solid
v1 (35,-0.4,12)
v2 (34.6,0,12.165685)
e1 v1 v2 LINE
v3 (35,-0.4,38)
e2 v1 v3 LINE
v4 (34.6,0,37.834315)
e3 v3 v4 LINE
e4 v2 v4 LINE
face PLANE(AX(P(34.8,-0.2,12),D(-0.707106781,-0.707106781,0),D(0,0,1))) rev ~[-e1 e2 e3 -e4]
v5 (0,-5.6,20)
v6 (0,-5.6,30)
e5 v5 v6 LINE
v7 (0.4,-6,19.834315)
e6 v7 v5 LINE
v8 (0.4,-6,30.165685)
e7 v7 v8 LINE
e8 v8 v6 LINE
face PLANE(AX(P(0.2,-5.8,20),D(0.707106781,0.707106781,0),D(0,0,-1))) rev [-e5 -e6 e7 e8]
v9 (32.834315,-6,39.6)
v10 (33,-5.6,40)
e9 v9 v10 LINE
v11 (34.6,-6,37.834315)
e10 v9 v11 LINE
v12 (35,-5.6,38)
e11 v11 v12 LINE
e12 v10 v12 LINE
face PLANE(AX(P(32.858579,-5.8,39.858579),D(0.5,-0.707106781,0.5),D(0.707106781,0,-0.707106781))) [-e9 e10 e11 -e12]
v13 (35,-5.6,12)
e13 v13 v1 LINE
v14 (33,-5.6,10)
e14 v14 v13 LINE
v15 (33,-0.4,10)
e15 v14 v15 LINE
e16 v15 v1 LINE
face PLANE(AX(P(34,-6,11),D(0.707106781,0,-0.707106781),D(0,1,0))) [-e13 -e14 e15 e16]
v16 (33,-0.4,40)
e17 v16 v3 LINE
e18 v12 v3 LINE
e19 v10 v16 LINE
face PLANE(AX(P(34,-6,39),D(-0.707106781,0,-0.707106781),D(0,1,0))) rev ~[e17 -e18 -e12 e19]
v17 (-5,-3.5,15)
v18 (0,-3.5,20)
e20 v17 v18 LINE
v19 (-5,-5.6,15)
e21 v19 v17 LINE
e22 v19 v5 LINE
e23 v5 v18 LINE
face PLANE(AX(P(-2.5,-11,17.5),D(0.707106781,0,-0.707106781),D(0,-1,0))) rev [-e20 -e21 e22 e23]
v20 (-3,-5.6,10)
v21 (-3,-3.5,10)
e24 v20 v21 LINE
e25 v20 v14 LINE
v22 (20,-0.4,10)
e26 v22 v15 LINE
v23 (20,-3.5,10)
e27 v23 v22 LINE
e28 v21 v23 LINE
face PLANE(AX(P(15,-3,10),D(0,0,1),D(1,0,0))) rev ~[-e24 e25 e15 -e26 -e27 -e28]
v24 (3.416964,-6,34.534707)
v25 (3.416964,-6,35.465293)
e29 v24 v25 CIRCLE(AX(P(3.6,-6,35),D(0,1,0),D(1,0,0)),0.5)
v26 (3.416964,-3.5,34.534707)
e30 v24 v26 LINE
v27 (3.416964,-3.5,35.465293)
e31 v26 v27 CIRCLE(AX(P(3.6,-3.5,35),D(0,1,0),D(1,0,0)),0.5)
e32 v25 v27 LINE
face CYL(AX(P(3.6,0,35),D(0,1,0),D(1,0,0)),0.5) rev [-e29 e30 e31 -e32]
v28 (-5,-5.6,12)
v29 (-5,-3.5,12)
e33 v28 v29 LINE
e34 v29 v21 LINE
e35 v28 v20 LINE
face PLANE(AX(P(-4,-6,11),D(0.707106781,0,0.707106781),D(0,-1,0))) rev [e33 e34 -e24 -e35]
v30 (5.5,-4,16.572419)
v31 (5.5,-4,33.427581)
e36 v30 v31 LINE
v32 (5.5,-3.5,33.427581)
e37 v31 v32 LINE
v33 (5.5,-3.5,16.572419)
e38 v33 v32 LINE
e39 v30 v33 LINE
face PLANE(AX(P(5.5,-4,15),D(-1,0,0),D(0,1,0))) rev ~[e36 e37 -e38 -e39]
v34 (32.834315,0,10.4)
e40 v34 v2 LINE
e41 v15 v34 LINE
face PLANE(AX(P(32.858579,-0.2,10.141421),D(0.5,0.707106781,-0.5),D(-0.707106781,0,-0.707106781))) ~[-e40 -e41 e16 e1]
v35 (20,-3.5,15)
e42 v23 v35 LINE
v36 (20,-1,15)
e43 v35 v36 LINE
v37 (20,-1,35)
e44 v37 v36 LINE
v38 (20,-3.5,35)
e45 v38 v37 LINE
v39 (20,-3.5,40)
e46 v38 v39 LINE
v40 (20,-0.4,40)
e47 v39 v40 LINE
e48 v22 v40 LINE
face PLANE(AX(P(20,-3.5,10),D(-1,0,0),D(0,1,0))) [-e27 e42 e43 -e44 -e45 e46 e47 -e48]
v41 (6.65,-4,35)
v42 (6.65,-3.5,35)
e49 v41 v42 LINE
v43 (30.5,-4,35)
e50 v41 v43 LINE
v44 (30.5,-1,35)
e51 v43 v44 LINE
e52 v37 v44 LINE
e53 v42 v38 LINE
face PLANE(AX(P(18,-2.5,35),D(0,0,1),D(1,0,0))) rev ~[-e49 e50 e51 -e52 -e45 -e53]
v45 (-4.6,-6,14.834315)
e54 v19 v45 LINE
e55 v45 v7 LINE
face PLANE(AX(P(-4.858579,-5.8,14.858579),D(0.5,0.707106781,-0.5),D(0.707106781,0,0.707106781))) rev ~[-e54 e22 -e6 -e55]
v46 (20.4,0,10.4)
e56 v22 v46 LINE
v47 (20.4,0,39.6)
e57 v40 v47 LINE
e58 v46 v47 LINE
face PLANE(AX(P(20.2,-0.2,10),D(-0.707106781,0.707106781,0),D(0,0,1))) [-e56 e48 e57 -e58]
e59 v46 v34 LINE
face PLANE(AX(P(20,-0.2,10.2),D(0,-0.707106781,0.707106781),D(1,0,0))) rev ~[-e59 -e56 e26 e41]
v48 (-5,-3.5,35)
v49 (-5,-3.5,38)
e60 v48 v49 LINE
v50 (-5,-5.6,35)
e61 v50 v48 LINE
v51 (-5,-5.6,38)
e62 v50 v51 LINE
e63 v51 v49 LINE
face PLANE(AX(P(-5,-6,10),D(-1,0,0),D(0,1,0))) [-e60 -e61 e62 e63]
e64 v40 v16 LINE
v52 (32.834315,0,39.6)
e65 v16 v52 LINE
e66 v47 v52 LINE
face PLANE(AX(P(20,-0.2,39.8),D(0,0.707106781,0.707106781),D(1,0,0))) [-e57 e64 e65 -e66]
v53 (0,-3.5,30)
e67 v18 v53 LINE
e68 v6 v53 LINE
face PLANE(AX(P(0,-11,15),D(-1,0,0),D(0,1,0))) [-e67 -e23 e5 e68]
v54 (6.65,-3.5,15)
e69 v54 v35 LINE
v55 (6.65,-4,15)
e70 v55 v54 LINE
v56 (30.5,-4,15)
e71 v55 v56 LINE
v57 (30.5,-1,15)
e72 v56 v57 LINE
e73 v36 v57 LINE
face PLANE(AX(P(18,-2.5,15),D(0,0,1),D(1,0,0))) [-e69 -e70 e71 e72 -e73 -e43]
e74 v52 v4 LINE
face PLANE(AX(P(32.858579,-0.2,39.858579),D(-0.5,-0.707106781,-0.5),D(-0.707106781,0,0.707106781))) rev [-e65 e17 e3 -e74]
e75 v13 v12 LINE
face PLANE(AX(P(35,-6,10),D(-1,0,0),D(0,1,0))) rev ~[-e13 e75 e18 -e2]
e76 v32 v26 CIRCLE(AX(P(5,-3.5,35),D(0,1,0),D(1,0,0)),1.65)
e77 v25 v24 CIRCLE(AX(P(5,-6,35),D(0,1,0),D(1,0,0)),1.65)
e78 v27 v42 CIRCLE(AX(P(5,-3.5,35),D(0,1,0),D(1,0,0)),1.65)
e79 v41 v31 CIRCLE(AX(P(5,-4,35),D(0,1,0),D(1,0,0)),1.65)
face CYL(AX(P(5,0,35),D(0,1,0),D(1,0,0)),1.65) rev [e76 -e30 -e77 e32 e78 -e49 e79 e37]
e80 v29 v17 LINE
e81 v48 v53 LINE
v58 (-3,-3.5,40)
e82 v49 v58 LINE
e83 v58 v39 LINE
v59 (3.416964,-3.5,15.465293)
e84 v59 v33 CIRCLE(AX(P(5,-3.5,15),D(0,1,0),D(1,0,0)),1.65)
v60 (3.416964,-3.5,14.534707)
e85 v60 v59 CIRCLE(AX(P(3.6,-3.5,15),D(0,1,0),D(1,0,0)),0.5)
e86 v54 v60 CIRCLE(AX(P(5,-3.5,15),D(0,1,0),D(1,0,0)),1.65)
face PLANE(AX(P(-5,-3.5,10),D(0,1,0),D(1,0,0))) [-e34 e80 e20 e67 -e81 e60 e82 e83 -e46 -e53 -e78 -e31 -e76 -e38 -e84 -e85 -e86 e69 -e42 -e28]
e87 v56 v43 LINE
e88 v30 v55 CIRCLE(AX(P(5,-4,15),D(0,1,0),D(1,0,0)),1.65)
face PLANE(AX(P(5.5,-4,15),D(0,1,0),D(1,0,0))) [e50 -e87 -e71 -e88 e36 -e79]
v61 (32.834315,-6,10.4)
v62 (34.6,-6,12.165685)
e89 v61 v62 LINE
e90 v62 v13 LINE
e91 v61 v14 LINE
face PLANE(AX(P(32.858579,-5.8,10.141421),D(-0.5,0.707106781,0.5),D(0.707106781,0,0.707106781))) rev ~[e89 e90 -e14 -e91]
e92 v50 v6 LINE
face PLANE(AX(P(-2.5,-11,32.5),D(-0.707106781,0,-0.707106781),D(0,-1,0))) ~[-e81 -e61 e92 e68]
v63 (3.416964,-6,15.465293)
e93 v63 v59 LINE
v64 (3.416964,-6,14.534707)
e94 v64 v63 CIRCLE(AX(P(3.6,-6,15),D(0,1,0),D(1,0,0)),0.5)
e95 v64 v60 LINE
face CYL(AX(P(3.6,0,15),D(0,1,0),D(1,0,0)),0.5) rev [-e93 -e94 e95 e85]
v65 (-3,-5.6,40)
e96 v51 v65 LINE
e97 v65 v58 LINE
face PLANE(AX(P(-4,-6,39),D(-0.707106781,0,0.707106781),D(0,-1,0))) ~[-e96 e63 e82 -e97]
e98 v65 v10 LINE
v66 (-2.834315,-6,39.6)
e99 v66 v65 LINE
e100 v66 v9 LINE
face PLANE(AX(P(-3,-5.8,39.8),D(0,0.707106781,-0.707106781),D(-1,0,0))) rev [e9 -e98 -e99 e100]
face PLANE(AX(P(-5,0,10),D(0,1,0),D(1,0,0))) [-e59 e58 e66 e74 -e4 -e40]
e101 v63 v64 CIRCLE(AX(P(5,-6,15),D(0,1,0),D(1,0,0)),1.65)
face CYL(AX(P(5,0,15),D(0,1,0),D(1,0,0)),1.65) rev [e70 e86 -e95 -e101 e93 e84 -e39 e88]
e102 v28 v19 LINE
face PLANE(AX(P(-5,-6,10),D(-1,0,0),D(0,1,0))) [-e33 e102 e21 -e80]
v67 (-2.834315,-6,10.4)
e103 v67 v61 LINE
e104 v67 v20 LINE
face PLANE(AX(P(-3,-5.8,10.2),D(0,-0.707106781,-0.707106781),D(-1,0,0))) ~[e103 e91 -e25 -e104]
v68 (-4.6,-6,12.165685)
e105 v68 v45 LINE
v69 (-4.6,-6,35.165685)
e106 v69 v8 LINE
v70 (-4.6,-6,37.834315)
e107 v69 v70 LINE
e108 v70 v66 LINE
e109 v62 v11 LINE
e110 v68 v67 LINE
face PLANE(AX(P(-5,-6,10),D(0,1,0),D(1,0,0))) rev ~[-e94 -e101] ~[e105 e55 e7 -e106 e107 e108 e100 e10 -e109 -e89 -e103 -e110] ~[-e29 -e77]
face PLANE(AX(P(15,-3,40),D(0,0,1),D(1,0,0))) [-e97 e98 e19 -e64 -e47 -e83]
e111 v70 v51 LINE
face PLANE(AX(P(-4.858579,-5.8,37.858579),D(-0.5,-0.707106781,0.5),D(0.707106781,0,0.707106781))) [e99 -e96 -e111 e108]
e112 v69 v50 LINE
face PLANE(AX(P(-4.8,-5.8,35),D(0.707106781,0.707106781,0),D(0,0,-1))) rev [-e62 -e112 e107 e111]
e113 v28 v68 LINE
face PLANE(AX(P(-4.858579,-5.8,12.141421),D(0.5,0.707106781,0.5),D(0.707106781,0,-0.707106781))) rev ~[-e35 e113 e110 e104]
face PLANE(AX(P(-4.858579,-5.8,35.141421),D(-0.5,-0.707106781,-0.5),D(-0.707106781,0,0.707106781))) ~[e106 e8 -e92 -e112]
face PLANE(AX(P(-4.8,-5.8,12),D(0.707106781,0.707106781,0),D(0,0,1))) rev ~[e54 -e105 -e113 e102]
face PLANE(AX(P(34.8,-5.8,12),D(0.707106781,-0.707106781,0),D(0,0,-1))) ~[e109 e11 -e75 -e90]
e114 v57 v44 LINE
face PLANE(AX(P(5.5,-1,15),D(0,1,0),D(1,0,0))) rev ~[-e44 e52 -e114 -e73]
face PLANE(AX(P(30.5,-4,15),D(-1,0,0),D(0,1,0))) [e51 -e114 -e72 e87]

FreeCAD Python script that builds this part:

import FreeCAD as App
import Part
import Sketcher

V = App.Vector


def edges_at(feature, points):
    """Names of the edges that pass closest to the given points."""
    edges = feature.Shape.Edges
    near = lambda p: min(range(len(edges)), key=lambda i: edges[i].distToShape(Part.Vertex(*p))[0])
    return sorted({f"Edge{near(p) + 1}" for p in points})

doc = App.newDocument("Part")
params = doc.addObject("Spreadsheet::Sheet", "Params")
for row, (alias, value) in enumerate([
    ("sketch1_diameter", "1 mm"),
    ("pad1_length", "10 mm"),
    ("sketch2_diameter", "1 mm"),
    ("pad2_length", "10 mm"),
    ("sketch3_diameter", "3.3 mm"),
    ("pad3_length", "10 mm"),
    ("sketch4_diameter", "3.3 mm"),
    ("pad4_length", "10 mm"),
    ("sketch5_width", "10 mm"),
    ("pad5_length", "20 mm"),
    ("chamfer_size", "5 mm"),
    ("sketch6_width", "25 mm"),
    ("sketch6_height", "3 mm"),
    ("pad6_length", "20 mm"),
    ("sketch7_width", "25 mm"),
    ("sketch7_height", "3.5 mm"),
    ("pad7_length", "30 mm"),
    ("sketch8_width", "40 mm"),
    ("sketch8_height", "6 mm"),
    ("pad8_length", "30 mm"),
    ("chamfer2_size", "2 mm"),
    ("chamfer3_size", "0.4 mm"),
], start=1):
    params.set(f"A{row}", alias)
    params.set(f"B{row}", "=" + value)
    params.setAlias(f"B{row}", alias)

body = doc.addObject("PartDesign::Body", "Body")

# Sketch on XZ plane
sketch1 = body.newObject("Sketcher::SketchObject", "Sketch")
sketch1.AttachmentSupport = (doc.getObject("XZ_Plane"), [""])
sketch1.MapMode = "FlatFace"
sketch1.addGeometry(Part.Circle(V(5, 25, 0), V(0, 0, 1), 0.5), False)
sketch1.addConstraint([
    Sketcher.Constraint("Diameter", 0, 1.0),
    Sketcher.Constraint("DistanceX", -1, 1, 0, 3, 5.0),
    Sketcher.Constraint("DistanceY", -1, 1, 0, 3, 25.0),
])
sketch1.setExpression("Constraints[0]", "Params.sketch1_diameter")
pad1 = body.newObject("PartDesign::Pad", "Pad")
pad1.Profile = sketch1
pad1.setExpression("Length", "Params.pad1_length")
body2 = doc.addObject("PartDesign::Body", "Body001")
body2.AllowCompound = True

# Sketch on XZ plane
sketch2 = body2.newObject("Sketcher::SketchObject", "Sketch001")
sketch2.AttachmentSupport = (doc.getObject("XZ_Plane001"), [""])
sketch2.MapMode = "FlatFace"
sketch2.addGeometry(Part.Circle(V(5, 5, 0), V(0, 0, 1), 0.5), False)
sketch2.addConstraint([
    Sketcher.Constraint("Diameter", 0, 1.0),
    Sketcher.Constraint("DistanceX", -1, 1, 0, 3, 5.0),
    Sketcher.Constraint("DistanceY", -1, 1, 0, 3, 5.0),
])
sketch2.setExpression("Constraints[0]", "Params.sketch2_diameter")
pad2 = body2.newObject("PartDesign::Pad", "Pad001")
pad2.Profile = sketch2
pad2.setExpression("Length", "Params.pad2_length")
doc.recompute()

boolean = body2.newObject("PartDesign::Boolean", "Boolean")
boolean.Type = "Fuse"
boolean.addObjects([body])
body3 = doc.addObject("PartDesign::Body", "Body002")
body3.AllowCompound = True
doc.recompute()

body2.Placement = App.Placement(V(-1.4, 0, 0), App.Rotation(V(0, 0, 1), 0))
boolean2 = body3.newObject("PartDesign::Boolean", "Boolean001")
boolean2.Type = "Fuse"
boolean2.addObjects([body2])
body4 = doc.addObject("PartDesign::Body", "Body003")

# Sketch on XZ plane
sketch3 = body4.newObject("Sketcher::SketchObject", "Sketch002")
sketch3.AttachmentSupport = (doc.getObject("XZ_Plane003"), [""])
sketch3.MapMode = "FlatFace"
sketch3.addGeometry(Part.Circle(V(5, 5, 0), V(0, 0, 1), 1.6), False)
sketch3.addConstraint([
    Sketcher.Constraint("Diameter", 0, 3.3),
    Sketcher.Constraint("DistanceX", -1, 1, 0, 3, 5.0),
    Sketcher.Constraint("DistanceY", -1, 1, 0, 3, 5.0),
])
sketch3.setExpression("Constraints[0]", "Params.sketch3_diameter")
pad3 = body4.newObject("PartDesign::Pad", "Pad002")
pad3.Profile = sketch3
pad3.setExpression("Length", "Params.pad3_length")
body5 = doc.addObject("PartDesign::Body", "Body004")
body5.AllowCompound = True

# Sketch on XZ plane
sketch4 = body5.newObject("Sketcher::SketchObject", "Sketch003")
sketch4.AttachmentSupport = (doc.getObject("XZ_Plane004"), [""])
sketch4.MapMode = "FlatFace"
sketch4.addGeometry(Part.Circle(V(5, 25, 0), V(0, 0, 1), 1.6), False)
sketch4.addConstraint([
    Sketcher.Constraint("Diameter", 0, 3.3),
    Sketcher.Constraint("DistanceX", -1, 1, 0, 3, 5.0),
    Sketcher.Constraint("DistanceY", -1, 1, 0, 3, 25.0),
])
sketch4.setExpression("Constraints[0]", "Params.sketch4_diameter")
pad4 = body5.newObject("PartDesign::Pad", "Pad003")
pad4.Profile = sketch4
pad4.setExpression("Length", "Params.pad4_length")
doc.recompute()

boolean3 = body5.newObject("PartDesign::Boolean", "Boolean002")
boolean3.Type = "Fuse"
boolean3.addObjects([body4])
doc.recompute()

boolean4 = body5.newObject("PartDesign::Boolean", "Boolean003")
boolean4.Type = "Fuse"
boolean4.addObjects([body3])
body6 = doc.addObject("PartDesign::Body", "Body005")

# Sketch on XY plane
sketch5 = body6.newObject("Sketcher::SketchObject", "Sketch004")
sketch5.AttachmentSupport = (doc.getObject("XY_Plane005"), [""])
sketch5.MapMode = "FlatFace"
sketch5.addGeometry([
    Part.LineSegment(V(-10, -1, 0), V(-10, -11, 0)),
    Part.LineSegment(V(-10, -11, 0), V(0, -11, 0)),
    Part.LineSegment(V(0, -11, 0), V(0, -1, 0)),
    Part.LineSegment(V(0, -1, 0), V(-10, -1, 0)),
], False)
sketch5.addConstraint([
    Sketcher.Constraint("Coincident", 0, 2, 1, 1),
    Sketcher.Constraint("Coincident", 1, 2, 2, 1),
    Sketcher.Constraint("Coincident", 2, 2, 3, 1),
    Sketcher.Constraint("Coincident", 3, 2, 0, 1),
    Sketcher.Constraint("Vertical", 0),
    Sketcher.Constraint("Horizontal", 1),
    Sketcher.Constraint("Vertical", 2),
    Sketcher.Constraint("Horizontal", 3),
    Sketcher.Constraint("PointOnObject", 1, 2, -2),
    Sketcher.Constraint("Equal", 3, 0),
    Sketcher.Constraint("DistanceX", 1, 1, 1, 2, 10.0),
    Sketcher.Constraint("DistanceY", 0, 2, -1, 1, 11.0),
])
sketch5.setExpression("Constraints[10]", "Params.sketch5_width")
pad5 = body6.newObject("PartDesign::Pad", "Pad004")
pad5.Profile = sketch5
pad5.setExpression("Length", "Params.pad5_length")
doc.recompute()

chamfer = body6.newObject("PartDesign::Chamfer", "Chamfer")
chamfer.Base = (pad5, edges_at(pad5, [(0, -6, 20), (0, -6, 0)]))
chamfer.setExpression("Size", "Params.chamfer_size")
body7 = doc.addObject("PartDesign::Body", "Body006")
doc.recompute()

body6.Placement = App.Placement(V(0, 0, 5), App.Rotation(V(0, 0, 1), 0))
boolean5 = body7.newObject("PartDesign::Boolean", "Boolean004")
boolean5.Type = "Fuse"
boolean5.addObjects([body6])
body8 = doc.addObject("PartDesign::Body", "Body007")

# Sketch on XY plane
sketch6 = body8.newObject("Sketcher::SketchObject", "Sketch005")
sketch6.AttachmentSupport = (doc.getObject("XY_Plane007"), [""])
sketch6.MapMode = "FlatFace"
sketch6.AttachmentOffset = App.Placement(V(0, 0, 5), App.Rotation())
sketch6.addGeometry([
    Part.LineSegment(V(5.5, -1, 0), V(5.5, -4, 0)),
    Part.LineSegment(V(5.5, -4, 0), V(30.5, -4, 0)),
    Part.LineSegment(V(30.5, -4, 0), V(30.5, -1, 0)),
    Part.LineSegment(V(30.5, -1, 0), V(5.5, -1, 0)),
], False)
sketch6.addConstraint([
    Sketcher.Constraint("Coincident", 0, 2, 1, 1),
    Sketcher.Constraint("Coincident", 1, 2, 2, 1),
    Sketcher.Constraint("Coincident", 2, 2, 3, 1),
    Sketcher.Constraint("Coincident", 3, 2, 0, 1),
    Sketcher.Constraint("Vertical", 0),
    Sketcher.Constraint("Horizontal", 1),
    Sketcher.Constraint("Vertical", 2),
    Sketcher.Constraint("Horizontal", 3),
    Sketcher.Constraint("DistanceX", 1, 1, 1, 2, 25.0),
    Sketcher.Constraint("DistanceY", 0, 2, 0, 1, 3.0),
    Sketcher.Constraint("DistanceY", 0, 2, -1, 1, 4.0),
    Sketcher.Constraint("DistanceX", -1, 1, 0, 2, 5.5),
])
sketch6.setExpression("Constraints[8]", "Params.sketch6_width")
sketch6.setExpression("Constraints[9]", "Params.sketch6_height")
pad6 = body8.newObject("PartDesign::Pad", "Pad005")
pad6.Profile = sketch6
pad6.setExpression("Length", "Params.pad6_length")
body9 = doc.addObject("PartDesign::Body", "Body008")

# Sketch on XY plane
sketch7 = body9.newObject("Sketcher::SketchObject", "Sketch006")
sketch7.AttachmentSupport = (doc.getObject("XY_Plane008"), [""])
sketch7.MapMode = "FlatFace"
sketch7.addGeometry([
    Part.LineSegment(V(-5, 0, 0), V(-5, -3.5, 0)),
    Part.LineSegment(V(-5, -3.5, 0), V(20, -3.5, 0)),
    Part.LineSegment(V(20, -3.5, 0), V(20, 0, 0)),
    Part.LineSegment(V(20, 0, 0), V(-5, 0, 0)),
], False)
sketch7.addConstraint([
    Sketcher.Constraint("Coincident", 0, 2, 1, 1),
    Sketcher.Constraint("Coincident", 1, 2, 2, 1),
    Sketcher.Constraint("Coincident", 2, 2, 3, 1),
    Sketcher.Constraint("Coincident", 3, 2, 0, 1),
    Sketcher.Constraint("Vertical", 0),
    Sketcher.Constraint("Horizontal", 1),
    Sketcher.Constraint("Vertical", 2),
    Sketcher.Constraint("Horizontal", 3),
    Sketcher.Constraint("PointOnObject", 2, 2, -1),
    Sketcher.Constraint("DistanceX", 1, 1, 1, 2, 25.0),
    Sketcher.Constraint("DistanceY", 0, 2, 0, 1, 3.5),
    Sketcher.Constraint("DistanceX", 0, 2, -1, 1, 5.0),
])
sketch7.setExpression("Constraints[9]", "Params.sketch7_width")
sketch7.setExpression("Constraints[10]", "Params.sketch7_height")
pad7 = body9.newObject("PartDesign::Pad", "Pad006")
pad7.Profile = sketch7
pad7.setExpression("Length", "Params.pad7_length")
body10 = doc.addObject("PartDesign::Body", "Body009")

# Sketch on XY plane
sketch8 = body10.newObject("Sketcher::SketchObject", "Sketch007")
sketch8.AttachmentSupport = (doc.getObject("XY_Plane009"), [""])
sketch8.MapMode = "FlatFace"
sketch8.addGeometry([
    Part.LineSegment(V(-5, 0, 0), V(-5, -6, 0)),
    Part.LineSegment(V(-5, -6, 0), V(35, -6, 0)),
    Part.LineSegment(V(35, -6, 0), V(35, 0, 0)),
    Part.LineSegment(V(35, 0, 0), V(-5, 0, 0)),
], False)
sketch8.addConstraint([
    Sketcher.Constraint("Coincident", 0, 2, 1, 1),
    Sketcher.Constraint("Coincident", 1, 2, 2, 1),
    Sketcher.Constraint("Coincident", 2, 2, 3, 1),
    Sketcher.Constraint("Coincident", 3, 2, 0, 1),
    Sketcher.Constraint("Vertical", 0),
    Sketcher.Constraint("Horizontal", 1),
    Sketcher.Constraint("Vertical", 2),
    Sketcher.Constraint("Horizontal", 3),
    Sketcher.Constraint("PointOnObject", 2, 2, -1),
    Sketcher.Constraint("DistanceX", 1, 1, 1, 2, 40.0),
    Sketcher.Constraint("DistanceY", 0, 2, 0, 1, 6.0),
    Sketcher.Constraint("DistanceX", 0, 2, -1, 1, 5.0),
])
sketch8.setExpression("Constraints[9]", "Params.sketch8_width")
sketch8.setExpression("Constraints[10]", "Params.sketch8_height")
pad8 = body10.newObject("PartDesign::Pad", "Pad007")
pad8.Profile = sketch8
pad8.setExpression("Length", "Params.pad8_length")
doc.recompute()

boolean6 = body10.newObject("PartDesign::Boolean", "Boolean005")
boolean6.Type = "Cut"
boolean6.addObjects([body9])
doc.recompute()

boolean7 = body10.newObject("PartDesign::Boolean", "Boolean006")
boolean7.Type = "Cut"
boolean7.addObjects([body8])
doc.recompute()

chamfer2 = body10.newObject("PartDesign::Chamfer", "Chamfer001")
chamfer2.Base = (boolean7, edges_at(boolean7, [
    (-5, -4.75, 30),
    (-5, -4.75, 0),
    (35, -3, 30),
    (35, -3, 0),
]))
chamfer2.setExpression("Size", "Params.chamfer2_size")
doc.recompute()

boolean8 = body10.newObject("PartDesign::Boolean", "Boolean007")
boolean8.Type = "Cut"
boolean8.addObjects([body7])
doc.recompute()

chamfer3 = body10.newObject("PartDesign::Chamfer", "Chamfer002")
chamfer3.Base = (boolean8, edges_at(boolean8, [
    (-5, -6, 3.5),
    (-4, -6, 1),
    (15, -6, 0),
    (34, -6, 1),
    (35, -6, 15),
    (34, -6, 29),
    (15, -6, 30),
    (-4, -6, 29),
    (-5, -6, 26.5),
    (-2.5, -6, 22.5),
    (0, -6, 15),
    (-2.5, -6, 7.5),
    (26.5, 0, 0),
    (34, 0, 1),
    (35, 0, 15),
    (34, 0, 29),
    (26.5, 0, 30),
    (20, 0, 15),
]))
chamfer3.setExpression("Size", "Params.chamfer3_size")
doc.recompute()

boolean9 = body10.newObject("PartDesign::Boolean", "Boolean008")
boolean9.Type = "Cut"
boolean9.addObjects([body5])
body11 = doc.addObject("PartDesign::Body", "Body010")
doc.recompute()

body10.Placement = App.Placement(V(0, 0, 10), App.Rotation(V(0, 0, 1), 0))
boolean10 = body11.newObject("PartDesign::Boolean", "Boolean009")
boolean10.Type = "Fuse"
boolean10.addObjects([body10])

doc.recompute()
